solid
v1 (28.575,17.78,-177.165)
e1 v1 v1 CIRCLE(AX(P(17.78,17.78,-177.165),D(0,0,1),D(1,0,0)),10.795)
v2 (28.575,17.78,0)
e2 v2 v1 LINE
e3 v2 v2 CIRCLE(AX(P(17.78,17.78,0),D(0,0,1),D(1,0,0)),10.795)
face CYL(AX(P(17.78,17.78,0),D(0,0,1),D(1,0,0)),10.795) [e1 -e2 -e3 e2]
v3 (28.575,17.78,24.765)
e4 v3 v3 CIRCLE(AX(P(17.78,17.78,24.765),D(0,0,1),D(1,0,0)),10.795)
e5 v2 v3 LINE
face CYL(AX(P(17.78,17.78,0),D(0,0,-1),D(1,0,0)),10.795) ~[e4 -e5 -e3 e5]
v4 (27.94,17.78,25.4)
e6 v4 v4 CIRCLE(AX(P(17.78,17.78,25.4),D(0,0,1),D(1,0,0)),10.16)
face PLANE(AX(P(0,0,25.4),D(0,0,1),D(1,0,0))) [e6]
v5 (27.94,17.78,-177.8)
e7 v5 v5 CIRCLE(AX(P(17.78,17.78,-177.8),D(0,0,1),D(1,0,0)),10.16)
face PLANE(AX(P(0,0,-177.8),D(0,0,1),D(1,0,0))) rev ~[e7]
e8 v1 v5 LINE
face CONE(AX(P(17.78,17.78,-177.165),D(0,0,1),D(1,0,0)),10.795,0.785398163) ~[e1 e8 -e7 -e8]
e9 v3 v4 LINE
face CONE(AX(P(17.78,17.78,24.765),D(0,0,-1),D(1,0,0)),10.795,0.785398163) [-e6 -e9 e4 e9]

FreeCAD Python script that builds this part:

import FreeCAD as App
import Part
import Sketcher
from FreeCAD import Vector
Q = App.Units.Quantity


def edges_at(feature, points):
    """Names of the edges that pass closest to the given points."""
    edges = feature.Shape.Edges
    near = lambda p: min(range(len(edges)), key=lambda i: edges[i].distToShape(Part.Vertex(*p))[0])
    return sorted({f"Edge{near(p) + 1}" for p in points})

doc = App.newDocument("Part")
params = doc.addObject("Spreadsheet::Sheet", "Params")
for row, (alias, value) in enumerate([
    ("sketch1_diameter", "0.85 in"),
    ("pad1_length", "1 in"),
    ("pad1_length2", "7 in"),
    ("chamfer_size", "0.025 in"),
], start=1):
    params.set(f"A{row}", alias)
    params.set(f"B{row}", "=" + value)
    params.setAlias(f"B{row}", alias)

body = doc.addObject("PartDesign::Body", "Body")

# Sketch on XY plane
sketch1 = body.newObject("Sketcher::SketchObject", "Sketch")
sketch1.AttachmentSupport = (doc.getObject("XY_Plane"), [""])
sketch1.MapMode = "FlatFace"
sketch1.addGeometry(Part.Circle(Vector(17.78, 17.78, 0), Vector(0, 0, 1), 10.795), False)
sketch1.addConstraint(Sketcher.Constraint("Diameter", 0, Q("0.85 in")))
sketch1.addConstraint(Sketcher.Constraint("DistanceX", -1, 1, 0, 3, Q("0.7 in")))
sketch1.addConstraint(Sketcher.Constraint("DistanceY", -1, 1, 0, 3, Q("0.7 in")))
sketch1.setExpression("Constraints[0]", "Params.sketch1_diameter")
pad1 = body.newObject("PartDesign::Pad", "Pad")
pad1.Profile = sketch1
pad1.Type = "TwoLengths"
pad1.setExpression("Length", "Params.pad1_length")
pad1.setExpression("Length2", "Params.pad1_length2")
doc.recompute()

chamfer = body.newObject("PartDesign::Chamfer", "Chamfer")
chamfer.Base = (pad1, edges_at(pad1, [(7.715, 13.876, 25.4), (7.715, 21.684, -177.8)]))
chamfer.setExpression("Size", "Params.chamfer_size")

doc.recompute()
